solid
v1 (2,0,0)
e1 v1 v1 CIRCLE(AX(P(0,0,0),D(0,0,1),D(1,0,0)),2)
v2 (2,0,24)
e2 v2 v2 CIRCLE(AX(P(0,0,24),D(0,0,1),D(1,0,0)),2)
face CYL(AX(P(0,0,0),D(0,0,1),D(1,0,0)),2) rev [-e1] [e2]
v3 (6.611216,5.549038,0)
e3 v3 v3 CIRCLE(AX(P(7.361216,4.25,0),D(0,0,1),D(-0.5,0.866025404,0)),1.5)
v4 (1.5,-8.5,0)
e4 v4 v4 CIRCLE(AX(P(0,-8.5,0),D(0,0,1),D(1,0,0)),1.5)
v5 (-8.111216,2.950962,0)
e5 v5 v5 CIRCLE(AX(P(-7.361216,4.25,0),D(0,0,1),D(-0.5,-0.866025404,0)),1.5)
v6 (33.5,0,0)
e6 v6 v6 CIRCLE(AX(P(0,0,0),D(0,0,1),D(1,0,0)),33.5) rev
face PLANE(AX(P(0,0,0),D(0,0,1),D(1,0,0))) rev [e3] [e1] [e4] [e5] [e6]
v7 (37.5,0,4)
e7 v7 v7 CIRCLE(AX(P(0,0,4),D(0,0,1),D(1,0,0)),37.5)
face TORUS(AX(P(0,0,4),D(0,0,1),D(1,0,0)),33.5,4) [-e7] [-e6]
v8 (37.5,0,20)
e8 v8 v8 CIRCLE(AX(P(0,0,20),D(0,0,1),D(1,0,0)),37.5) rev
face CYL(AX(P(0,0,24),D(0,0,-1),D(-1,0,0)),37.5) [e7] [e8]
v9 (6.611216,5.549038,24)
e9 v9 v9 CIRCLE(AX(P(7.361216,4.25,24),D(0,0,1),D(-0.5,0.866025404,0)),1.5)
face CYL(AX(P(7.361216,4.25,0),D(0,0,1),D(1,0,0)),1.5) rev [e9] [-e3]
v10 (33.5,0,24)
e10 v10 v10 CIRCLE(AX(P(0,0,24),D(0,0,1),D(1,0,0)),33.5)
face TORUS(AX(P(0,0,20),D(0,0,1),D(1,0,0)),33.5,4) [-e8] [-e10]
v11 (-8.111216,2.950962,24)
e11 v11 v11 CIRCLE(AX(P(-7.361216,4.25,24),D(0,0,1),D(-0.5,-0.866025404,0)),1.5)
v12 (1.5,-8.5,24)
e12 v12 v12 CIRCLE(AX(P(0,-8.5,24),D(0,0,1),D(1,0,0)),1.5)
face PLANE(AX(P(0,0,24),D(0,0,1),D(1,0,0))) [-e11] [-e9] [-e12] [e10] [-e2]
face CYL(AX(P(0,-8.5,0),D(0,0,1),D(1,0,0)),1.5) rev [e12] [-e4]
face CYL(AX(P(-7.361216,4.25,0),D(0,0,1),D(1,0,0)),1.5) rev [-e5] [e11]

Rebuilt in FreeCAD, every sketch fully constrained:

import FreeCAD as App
import Part
import Sketcher
from FreeCAD import Vector
Q = App.Units.Quantity


def edges_at(feature, points):
    """Names of the edges that pass closest to the given points."""
    edges = feature.Shape.Edges
    near = lambda p: min(range(len(edges)), key=lambda i: edges[i].distToShape(Part.Vertex(*p))[0])
    return sorted({f"Edge{near(p) + 1}" for p in points})

doc = App.newDocument("Part")
body = doc.addObject("PartDesign::Body", "Body")

# Sketch on XY plane
sketch1 = body.newObject("Sketcher::SketchObject", "Sketch")
sketch1.AttachmentSupport = (doc.getObject("XY_Plane"), [""])
sketch1.MapMode = "FlatFace"
sketch1.addGeometry(Part.Circle(Vector(0, 0, 0), Vector(0, 0, 1), 37.5), False)
sketch1.addConstraint([
    Sketcher.Constraint("Coincident", 0, 3, -1, 1),
    Sketcher.Constraint("Diameter", 0, Q("75 mm")),
])
pad1 = body.newObject("PartDesign::Pad", "Pad")
pad1.Profile = sketch1
pad1.Length = 24
doc.recompute()

fillet = body.newObject("PartDesign::Fillet", "Fillet")
fillet.Base = (pad1, edges_at(pad1, [(-37.5, 0, 0), (-37.5, 0, 24)]))
fillet.Radius = 4

# Sketch on XY plane
sketch2 = body.newObject("Sketcher::SketchObject", "Sketch001")
sketch2.AttachmentSupport = (doc.getObject("XY_Plane"), [""])
sketch2.MapMode = "FlatFace"
sketch2.AttachmentOffset = App.Placement(Vector(0, 0, 24), App.Rotation())
sketch2.addGeometry(Part.Circle(Vector(0, 0, 0), Vector(0, 0, 1), 2), False)
sketch2.addConstraint([
    Sketcher.Constraint("Coincident", 0, 3, -1, 1),
    Sketcher.Constraint("Diameter", 0, Q("4 mm")),
])
pocket1 = body.newObject("PartDesign::Pocket", "Pocket")
pocket1.Profile = sketch2
pocket1.Length = 24

# Sketch on XY plane
sketch3 = body.newObject("Sketcher::SketchObject", "Sketch002")
sketch3.AttachmentSupport = (doc.getObject("XY_Plane"), [""])
sketch3.MapMode = "FlatFace"
sketch3.AttachmentOffset = App.Placement(Vector(0, 0, 24), App.Rotation())
sketch3.addGeometry(Part.Circle(Vector(0, -8.5, 0), Vector(0, 0, 1), 1.5), False)
sketch3.addConstraint([
    Sketcher.Constraint("PointOnObject", 0, 3, -2),
    Sketcher.Constraint("Diameter", 0, Q("3 mm")),
    Sketcher.Constraint("DistanceY", 0, 3, -1, 1, Q("8.5 mm")),
])
pocket2 = body.newObject("PartDesign::Pocket", "Pocket001")
pocket2.Profile = sketch3
pocket2.Type = "ThroughAll"
doc.recompute()

polarpattern = body.newObject("PartDesign::PolarPattern", "PolarPattern")
polarpattern.Originals = [pocket2]
polarpattern.Axis = (doc.getObject("Z_Axis"), [""])
polarpattern.Angle = 360
polarpattern.Occurrences = 3
body.Tip = polarpattern

doc.recompute()
